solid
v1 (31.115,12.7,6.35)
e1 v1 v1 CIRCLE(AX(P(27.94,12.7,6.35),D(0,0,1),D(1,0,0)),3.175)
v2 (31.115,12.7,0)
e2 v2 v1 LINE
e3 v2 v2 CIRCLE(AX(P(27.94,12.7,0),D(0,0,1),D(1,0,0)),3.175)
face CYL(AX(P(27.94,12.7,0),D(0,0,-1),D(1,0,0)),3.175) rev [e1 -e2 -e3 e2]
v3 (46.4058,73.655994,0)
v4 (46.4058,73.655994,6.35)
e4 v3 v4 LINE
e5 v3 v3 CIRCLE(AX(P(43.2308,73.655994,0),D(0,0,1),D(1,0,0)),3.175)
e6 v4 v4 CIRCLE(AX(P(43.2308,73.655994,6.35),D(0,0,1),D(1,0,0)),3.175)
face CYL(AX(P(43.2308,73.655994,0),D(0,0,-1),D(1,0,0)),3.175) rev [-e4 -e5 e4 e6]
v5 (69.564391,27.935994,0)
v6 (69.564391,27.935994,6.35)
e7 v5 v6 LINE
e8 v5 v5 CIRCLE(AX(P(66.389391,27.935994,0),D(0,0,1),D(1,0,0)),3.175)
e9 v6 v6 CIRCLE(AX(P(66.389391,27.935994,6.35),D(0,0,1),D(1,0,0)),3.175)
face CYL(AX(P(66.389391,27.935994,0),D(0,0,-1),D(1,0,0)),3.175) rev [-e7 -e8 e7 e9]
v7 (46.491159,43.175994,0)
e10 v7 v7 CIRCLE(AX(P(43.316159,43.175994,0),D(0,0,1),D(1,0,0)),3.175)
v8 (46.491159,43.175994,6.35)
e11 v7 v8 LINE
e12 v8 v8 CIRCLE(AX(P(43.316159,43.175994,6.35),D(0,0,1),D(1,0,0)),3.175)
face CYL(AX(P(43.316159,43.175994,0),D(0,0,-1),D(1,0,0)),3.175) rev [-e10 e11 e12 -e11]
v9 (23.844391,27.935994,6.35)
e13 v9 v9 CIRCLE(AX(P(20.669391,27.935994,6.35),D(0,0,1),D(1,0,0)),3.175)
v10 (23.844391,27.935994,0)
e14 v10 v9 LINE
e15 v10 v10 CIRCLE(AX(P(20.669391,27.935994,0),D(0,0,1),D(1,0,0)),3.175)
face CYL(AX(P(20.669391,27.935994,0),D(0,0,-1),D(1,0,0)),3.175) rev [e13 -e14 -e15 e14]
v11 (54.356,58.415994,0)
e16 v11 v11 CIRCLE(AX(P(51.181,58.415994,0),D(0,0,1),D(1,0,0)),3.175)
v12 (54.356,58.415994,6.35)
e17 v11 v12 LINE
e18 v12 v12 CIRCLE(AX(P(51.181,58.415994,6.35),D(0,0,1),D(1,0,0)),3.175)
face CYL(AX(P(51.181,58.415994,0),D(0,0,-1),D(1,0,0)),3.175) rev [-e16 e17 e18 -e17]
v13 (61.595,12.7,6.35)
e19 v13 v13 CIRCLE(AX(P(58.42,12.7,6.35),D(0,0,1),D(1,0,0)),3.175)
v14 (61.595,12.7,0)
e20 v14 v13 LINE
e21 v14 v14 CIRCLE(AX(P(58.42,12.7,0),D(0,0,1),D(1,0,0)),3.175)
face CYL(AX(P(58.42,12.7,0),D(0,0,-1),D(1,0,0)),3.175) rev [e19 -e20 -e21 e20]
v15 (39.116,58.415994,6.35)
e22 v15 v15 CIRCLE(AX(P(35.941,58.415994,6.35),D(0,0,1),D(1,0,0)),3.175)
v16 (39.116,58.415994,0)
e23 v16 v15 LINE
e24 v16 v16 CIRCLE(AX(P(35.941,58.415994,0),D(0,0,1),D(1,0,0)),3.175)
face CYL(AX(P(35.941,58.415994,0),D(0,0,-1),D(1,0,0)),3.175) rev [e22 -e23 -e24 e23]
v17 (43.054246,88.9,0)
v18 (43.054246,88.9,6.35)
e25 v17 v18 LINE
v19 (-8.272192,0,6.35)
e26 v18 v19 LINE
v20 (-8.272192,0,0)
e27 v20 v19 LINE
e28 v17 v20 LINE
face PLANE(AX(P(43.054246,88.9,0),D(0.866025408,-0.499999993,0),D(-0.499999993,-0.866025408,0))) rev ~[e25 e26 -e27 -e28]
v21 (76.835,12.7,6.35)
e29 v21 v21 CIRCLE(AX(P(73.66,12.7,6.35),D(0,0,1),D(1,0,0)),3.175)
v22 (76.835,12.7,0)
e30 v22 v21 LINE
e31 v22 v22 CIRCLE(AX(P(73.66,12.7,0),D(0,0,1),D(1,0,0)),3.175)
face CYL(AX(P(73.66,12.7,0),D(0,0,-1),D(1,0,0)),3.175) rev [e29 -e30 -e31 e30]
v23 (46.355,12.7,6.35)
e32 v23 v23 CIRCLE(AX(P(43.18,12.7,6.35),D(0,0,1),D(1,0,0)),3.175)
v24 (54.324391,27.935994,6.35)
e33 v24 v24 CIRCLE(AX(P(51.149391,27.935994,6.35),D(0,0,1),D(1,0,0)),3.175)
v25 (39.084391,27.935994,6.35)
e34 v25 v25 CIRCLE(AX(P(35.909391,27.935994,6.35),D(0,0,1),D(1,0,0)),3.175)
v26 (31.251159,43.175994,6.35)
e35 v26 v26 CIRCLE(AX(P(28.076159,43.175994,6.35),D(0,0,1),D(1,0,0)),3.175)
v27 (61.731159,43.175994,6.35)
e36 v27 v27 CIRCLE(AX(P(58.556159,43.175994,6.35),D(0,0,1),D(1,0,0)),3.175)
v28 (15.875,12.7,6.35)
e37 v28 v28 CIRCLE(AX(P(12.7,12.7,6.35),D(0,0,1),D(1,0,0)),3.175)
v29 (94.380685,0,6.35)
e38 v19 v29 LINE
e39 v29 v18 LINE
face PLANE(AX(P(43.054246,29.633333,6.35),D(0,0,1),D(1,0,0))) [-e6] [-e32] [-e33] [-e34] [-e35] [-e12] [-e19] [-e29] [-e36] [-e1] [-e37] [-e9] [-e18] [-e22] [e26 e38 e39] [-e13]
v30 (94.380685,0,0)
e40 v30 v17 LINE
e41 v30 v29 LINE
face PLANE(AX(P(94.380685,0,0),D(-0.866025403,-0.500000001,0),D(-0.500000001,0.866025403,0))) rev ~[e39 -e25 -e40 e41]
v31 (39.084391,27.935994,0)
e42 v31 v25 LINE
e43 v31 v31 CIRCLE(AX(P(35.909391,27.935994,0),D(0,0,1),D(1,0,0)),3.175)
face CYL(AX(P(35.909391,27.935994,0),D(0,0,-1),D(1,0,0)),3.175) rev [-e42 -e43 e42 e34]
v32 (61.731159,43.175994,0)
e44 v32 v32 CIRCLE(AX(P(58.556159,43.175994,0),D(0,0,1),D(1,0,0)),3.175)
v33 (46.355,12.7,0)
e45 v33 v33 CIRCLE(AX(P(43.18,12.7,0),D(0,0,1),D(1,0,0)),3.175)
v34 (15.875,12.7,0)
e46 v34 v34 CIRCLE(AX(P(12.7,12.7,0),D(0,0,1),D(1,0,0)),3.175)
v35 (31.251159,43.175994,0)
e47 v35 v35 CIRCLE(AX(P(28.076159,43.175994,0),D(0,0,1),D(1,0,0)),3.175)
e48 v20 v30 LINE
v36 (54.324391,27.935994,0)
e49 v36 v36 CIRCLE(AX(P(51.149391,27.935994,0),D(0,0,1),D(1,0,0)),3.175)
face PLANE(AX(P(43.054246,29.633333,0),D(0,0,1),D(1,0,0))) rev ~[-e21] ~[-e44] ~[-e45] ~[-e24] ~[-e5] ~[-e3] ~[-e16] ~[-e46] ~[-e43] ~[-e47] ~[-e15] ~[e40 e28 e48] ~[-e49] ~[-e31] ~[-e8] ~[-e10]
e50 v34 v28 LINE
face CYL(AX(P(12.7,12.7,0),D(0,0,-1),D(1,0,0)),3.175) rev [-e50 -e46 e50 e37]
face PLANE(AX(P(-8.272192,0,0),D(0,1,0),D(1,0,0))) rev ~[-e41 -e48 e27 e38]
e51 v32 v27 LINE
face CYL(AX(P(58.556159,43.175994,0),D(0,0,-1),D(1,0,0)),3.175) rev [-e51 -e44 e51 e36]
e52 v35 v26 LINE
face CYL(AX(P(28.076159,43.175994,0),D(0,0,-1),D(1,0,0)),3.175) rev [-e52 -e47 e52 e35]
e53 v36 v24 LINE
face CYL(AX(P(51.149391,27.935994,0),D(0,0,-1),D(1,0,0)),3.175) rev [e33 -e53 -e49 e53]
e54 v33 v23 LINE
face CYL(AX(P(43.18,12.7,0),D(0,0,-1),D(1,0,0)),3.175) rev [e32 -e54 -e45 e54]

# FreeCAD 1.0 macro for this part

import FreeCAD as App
import Part
import Sketcher
from FreeCAD import Vector
Q = App.Units.Quantity

doc = App.newDocument("Part")
params = doc.addObject("Spreadsheet::Sheet", "Params")
for row, (alias, value) in enumerate([
    ("pad1_length", "0.25 in"),
    ("sketch2_diameter", "0.25 in"),
], start=1):
    params.set(f"A{row}", alias)
    params.set(f"B{row}", "=" + value)
    params.setAlias(f"B{row}", alias)

body = doc.addObject("PartDesign::Body", "Body")

# Sketch on XY plane
sketch1 = body.newObject("Sketcher::SketchObject", "Sketch")
sketch1.AttachmentSupport = (doc.getObject("XY_Plane"), [""])
sketch1.MapMode = "FlatFace"
sketch1.addGeometry(Part.LineSegment(Vector(-8, 0, 0), Vector(94, 0, 0)), False)
sketch1.addGeometry(Part.LineSegment(Vector(94, 0, 0), Vector(43, 89, 0)), False)
sketch1.addGeometry(Part.LineSegment(Vector(43, 89, 0), Vector(-8, 0, 0)), False)
sketch1.addConstraint(Sketcher.Constraint("Coincident", 0, 2, 1, 1))
sketch1.addConstraint(Sketcher.Constraint("Coincident", 1, 2, 2, 1))
sketch1.addConstraint(Sketcher.Constraint("Coincident", 2, 2, 0, 1))
sketch1.addConstraint(Sketcher.Constraint("Horizontal", 0))
sketch1.addConstraint(Sketcher.Constraint("PointOnObject", 0, 2, -1))
sketch1.addConstraint(Sketcher.Constraint("Equal", 1, 2))
sketch1.addConstraint(Sketcher.Constraint("Angle", 1, Q("120 deg")))
sketch1.addConstraint(Sketcher.Constraint("DistanceY", -1, 1, 1, 2, Q("3.5 in")))
sketch1.addConstraint(Sketcher.Constraint("DistanceX", -1, 1, 0, 2, Q("94.380685 mm")))
pad1 = body.newObject("PartDesign::Pad", "Pad")
pad1.Profile = sketch1
pad1.setExpression("Length", "Params.pad1_length")

# Sketch on XY plane
sketch2 = body.newObject("Sketcher::SketchObject", "Sketch001")
sketch2.AttachmentSupport = (doc.getObject("XY_Plane"), [""])
sketch2.MapMode = "FlatFace"
sketch2.addGeometry(Part.Circle(Vector(43.2, 73.7, 0), Vector(0, 0, 1), 3.2), False)
sketch2.addGeometry(Part.Circle(Vector(12.7, 12.7, 0), Vector(0, 0, 1), 3.2), False)
sketch2.addGeometry(Part.Circle(Vector(27.9, 12.7, 0), Vector(0, 0, 1), 3.2), False)
sketch2.addGeometry(Part.Circle(Vector(43.2, 12.7, 0), Vector(0, 0, 1), 3.2), False)
sketch2.addGeometry(Part.Circle(Vector(58.4, 12.7, 0), Vector(0, 0, 1), 3.2), False)
sketch2.addGeometry(Part.Circle(Vector(73.7, 12.7, 0), Vector(0, 0, 1), 3.2), False)
sketch2.addGeometry(Part.Circle(Vector(20.7, 27.9, 0), Vector(0, 0, 1), 3.2), False)
sketch2.addGeometry(Part.Circle(Vector(35.9, 27.9, 0), Vector(0, 0, 1), 3.2), False)
sketch2.addGeometry(Part.Circle(Vector(51.1, 27.9, 0), Vector(0, 0, 1), 3.2), False)
sketch2.addGeometry(Part.Circle(Vector(66.4, 27.9, 0), Vector(0, 0, 1), 3.2), False)
sketch2.addGeometry(Part.Circle(Vector(28.1, 43.2, 0), Vector(0, 0, 1), 3.2), False)
sketch2.addGeometry(Part.Circle(Vector(43.3, 43.2, 0), Vector(0, 0, 1), 3.2), False)
sketch2.addGeometry(Part.Circle(Vector(58.6, 43.2, 0), Vector(0, 0, 1), 3.2), False)
sketch2.addGeometry(Part.Circle(Vector(35.9, 58.4, 0), Vector(0, 0, 1), 3.2), False)
sketch2.addGeometry(Part.Circle(Vector(51.2, 58.4, 0), Vector(0, 0, 1), 3.2), False)
sketch2.addConstraint(Sketcher.Constraint("Equal", 0, 1))
sketch2.addConstraint(Sketcher.Constraint("Equal", 1, 2))
sketch2.addConstraint(Sketcher.Constraint("Equal", 2, 3))
sketch2.addConstraint(Sketcher.Constraint("Equal", 3, 4))
sketch2.addConstraint(Sketcher.Constraint("Equal", 4, 5))
sketch2.addConstraint(Sketcher.Constraint("Equal", 5, 6))
sketch2.addConstraint(Sketcher.Constraint("Equal", 6, 7))
sketch2.addConstraint(Sketcher.Constraint("Equal", 7, 8))
sketch2.addConstraint(Sketcher.Constraint("Equal", 8, 9))
sketch2.addConstraint(Sketcher.Constraint("Equal", 9, 10))
sketch2.addConstraint(Sketcher.Constraint("Equal", 10, 11))
sketch2.addConstraint(Sketcher.Constraint("Equal", 11, 12))
sketch2.addConstraint(Sketcher.Constraint("Equal", 12, 13))
sketch2.addConstraint(Sketcher.Constraint("Equal", 13, 14))
sketch2.addConstraint(Sketcher.Constraint("Horizontal", 1, 3, 2, 3))
sketch2.addConstraint(Sketcher.Constraint("Horizontal", 2, 3, 3, 3))
sketch2.addConstraint(Sketcher.Constraint("Horizontal", 3, 3, 4, 3))
sketch2.addConstraint(Sketcher.Constraint("Horizontal", 4, 3, 5, 3))
sketch2.addConstraint(Sketcher.Constraint("Horizontal", 6, 3, 7, 3))
sketch2.addConstraint(Sketcher.Constraint("Horizontal", 7, 3, 8, 3))
sketch2.addConstraint(Sketcher.Constraint("Horizontal", 8, 3, 9, 3))
sketch2.addConstraint(Sketcher.Constraint("Horizontal", 10, 3, 11, 3))
sketch2.addConstraint(Sketcher.Constraint("Horizontal", 11, 3, 12, 3))
sketch2.addConstraint(Sketcher.Constraint("Horizontal", 13, 3, 14, 3))
sketch2.addConstraint(Sketcher.Constraint("Diameter", 0, Q("0.25 in")))
sketch2.addConstraint(Sketcher.Constraint("DistanceX", -1, 1, 1, 3, Q("0.5 in")))
sketch2.addConstraint(Sketcher.Constraint("DistanceY", -1, 1, 1, 3, Q("0.5 in")))
sketch2.addConstraint(Sketcher.Constraint("DistanceX", -1, 1, 2, 3, Q("1.1 in")))
sketch2.addConstraint(Sketcher.Constraint("DistanceX", -1, 1, 3, 3, Q("1.7 in")))
sketch2.addConstraint(Sketcher.Constraint("DistanceX", -1, 1, 4, 3, Q("2.3 in")))
sketch2.addConstraint(Sketcher.Constraint("DistanceX", -1, 1, 5, 3, Q("2.9 in")))
sketch2.addConstraint(Sketcher.Constraint("DistanceY", 6, 3, 0, 3, Q("1.8 in")))
sketch2.addConstraint(Sketcher.Constraint("DistanceX", 6, 3, 7, 3, Q("0.6 in")))
sketch2.addConstraint(Sketcher.Constraint("DistanceX", 7, 3, 8, 3, Q("0.6 in")))
sketch2.addConstraint(Sketcher.Constraint("DistanceX", 8, 3, 9, 3, Q("0.6 in")))
sketch2.addConstraint(Sketcher.Constraint("DistanceY", 6, 3, 10, 3, Q("0.6 in")))
sketch2.addConstraint(Sketcher.Constraint("DistanceX", 10, 3, 11, 3, Q("0.6 in")))
sketch2.addConstraint(Sketcher.Constraint("DistanceX", 11, 3, 12, 3, Q("0.6 in")))
sketch2.addConstraint(Sketcher.Constraint("DistanceY", 13, 3, 0, 3, Q("0.6 in")))
sketch2.addConstraint(Sketcher.Constraint("DistanceX", 13, 3, 14, 3, Q("0.6 in")))
sketch2.addConstraint(Sketcher.Constraint("DistanceX", -1, 1, 0, 3, Q("1.702 in")))
sketch2.addConstraint(Sketcher.Constraint("DistanceX", -1, 1, 13, 3, Q("1.415 in")))
sketch2.addConstraint(Sketcher.Constraint("DistanceX", -1, 1, 6, 3, Q("20.669391 mm")))
sketch2.addConstraint(Sketcher.Constraint("DistanceX", -1, 1, 10, 3, Q("28.076159 mm")))
sketch2.addConstraint(Sketcher.Constraint("DistanceY", -1, 1, 0, 3, Q("73.655994 mm")))
sketch2.setExpression("Constraints[24]", "Params.sketch2_diameter")
pocket1 = body.newObject("PartDesign::Pocket", "Pocket")
pocket1.Profile = sketch2
pocket1.Type = "ThroughAll"
pocket1.Reversed = True

doc.recompute()
